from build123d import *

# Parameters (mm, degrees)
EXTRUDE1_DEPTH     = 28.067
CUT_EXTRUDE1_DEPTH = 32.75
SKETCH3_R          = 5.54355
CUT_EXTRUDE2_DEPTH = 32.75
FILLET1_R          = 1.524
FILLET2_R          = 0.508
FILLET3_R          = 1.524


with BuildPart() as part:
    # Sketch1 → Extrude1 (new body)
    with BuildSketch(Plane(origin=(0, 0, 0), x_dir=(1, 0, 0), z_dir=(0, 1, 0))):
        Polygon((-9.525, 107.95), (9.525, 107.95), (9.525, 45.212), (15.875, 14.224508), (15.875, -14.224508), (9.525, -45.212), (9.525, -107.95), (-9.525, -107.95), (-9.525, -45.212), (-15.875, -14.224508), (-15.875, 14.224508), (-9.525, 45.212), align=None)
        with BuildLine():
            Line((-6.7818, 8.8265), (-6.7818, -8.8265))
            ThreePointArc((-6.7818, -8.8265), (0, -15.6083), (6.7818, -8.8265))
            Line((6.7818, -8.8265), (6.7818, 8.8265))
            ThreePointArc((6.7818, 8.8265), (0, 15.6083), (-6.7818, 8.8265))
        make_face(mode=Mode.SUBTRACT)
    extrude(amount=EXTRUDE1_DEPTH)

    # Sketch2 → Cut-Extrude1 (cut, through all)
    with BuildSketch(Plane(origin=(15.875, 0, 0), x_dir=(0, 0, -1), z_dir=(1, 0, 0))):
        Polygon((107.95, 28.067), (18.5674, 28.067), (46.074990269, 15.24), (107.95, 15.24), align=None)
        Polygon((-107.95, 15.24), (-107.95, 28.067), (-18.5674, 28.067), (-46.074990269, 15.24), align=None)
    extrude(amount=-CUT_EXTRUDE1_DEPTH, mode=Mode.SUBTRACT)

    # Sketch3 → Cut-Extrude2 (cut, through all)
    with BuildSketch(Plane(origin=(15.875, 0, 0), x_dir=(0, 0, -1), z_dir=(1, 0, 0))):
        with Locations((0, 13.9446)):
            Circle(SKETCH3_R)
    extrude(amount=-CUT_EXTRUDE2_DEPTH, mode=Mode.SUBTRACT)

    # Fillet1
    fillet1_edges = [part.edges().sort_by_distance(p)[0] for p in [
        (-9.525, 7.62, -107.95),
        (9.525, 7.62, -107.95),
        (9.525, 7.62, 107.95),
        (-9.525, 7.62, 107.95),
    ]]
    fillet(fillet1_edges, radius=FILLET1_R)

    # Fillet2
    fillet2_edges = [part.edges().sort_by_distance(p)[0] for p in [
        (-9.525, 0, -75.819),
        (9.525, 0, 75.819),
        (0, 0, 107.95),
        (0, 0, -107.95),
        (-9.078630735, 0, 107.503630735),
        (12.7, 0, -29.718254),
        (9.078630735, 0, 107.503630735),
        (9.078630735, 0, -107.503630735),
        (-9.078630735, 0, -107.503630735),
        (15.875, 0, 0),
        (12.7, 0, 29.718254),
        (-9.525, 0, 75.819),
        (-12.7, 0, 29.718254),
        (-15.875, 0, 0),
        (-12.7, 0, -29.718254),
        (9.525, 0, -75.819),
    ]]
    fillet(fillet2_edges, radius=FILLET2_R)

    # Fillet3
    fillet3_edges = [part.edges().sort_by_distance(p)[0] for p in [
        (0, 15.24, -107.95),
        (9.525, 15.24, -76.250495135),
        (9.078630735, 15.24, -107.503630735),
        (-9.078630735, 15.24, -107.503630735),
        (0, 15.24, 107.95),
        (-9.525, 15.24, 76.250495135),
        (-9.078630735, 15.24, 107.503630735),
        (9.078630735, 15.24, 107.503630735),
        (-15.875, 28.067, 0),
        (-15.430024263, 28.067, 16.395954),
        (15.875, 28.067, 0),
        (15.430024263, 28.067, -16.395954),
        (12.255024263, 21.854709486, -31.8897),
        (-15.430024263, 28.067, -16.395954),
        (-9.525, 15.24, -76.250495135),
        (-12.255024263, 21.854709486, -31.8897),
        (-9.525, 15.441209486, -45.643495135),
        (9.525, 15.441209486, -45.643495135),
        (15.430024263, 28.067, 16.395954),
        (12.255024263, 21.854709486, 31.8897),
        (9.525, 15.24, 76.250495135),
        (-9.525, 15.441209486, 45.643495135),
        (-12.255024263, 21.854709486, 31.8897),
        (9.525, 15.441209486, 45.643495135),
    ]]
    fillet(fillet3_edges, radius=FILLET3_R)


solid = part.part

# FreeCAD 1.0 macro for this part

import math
import FreeCAD as App
import Part
import Sketcher

V = App.Vector
Q = App.Units.Quantity


def edges_at(feature, points):
    """Names of the edges that pass closest to the given points."""
    edges = feature.Shape.Edges
    near = lambda p: min(range(len(edges)), key=lambda i: edges[i].distToShape(Part.Vertex(*p))[0])
    return sorted({f"Edge{near(p) + 1}" for p in points})

doc = App.newDocument("Part")
params = doc.addObject("Spreadsheet::Sheet", "Params")
for row, (alias, value) in enumerate([
    ("sketch1_radius", "0.267 in"),
    ("sketch1_width", "0.75 in"),
    ("sketch1_height", "2.47 in"),
    ("sketch1_height2", "0.695 in"),
    ("pad1_length", "1.105 in"),
    ("sketch2_width", "0.505 in"),
    ("sketch2_height", "3.519 in"),
    ("fillet_radius", "0.06 in"),
    ("fillet2_radius", "0.02 in"),
    ("fillet3_radius", "0.06 in"),
], start=1):
    params.set(f"A{row}", alias)
    params.set(f"B{row}", "=" + value)
    params.setAlias(f"B{row}", alias)

body = doc.addObject("PartDesign::Body", "Body")

sketch1 = body.newObject("Sketcher::SketchObject", "Sketch")
sketch1.AttachmentSupport = (doc.getObject("XZ_Plane"), [""])
sketch1.MapMode = "FlatFace"
sketch1.addGeometry(Part.LineSegment(V(10, -108, 0), V(-10, -108, 0)), False)
sketch1.addGeometry(Part.LineSegment(V(-10, -108, 0), V(-10, -45, 0)), False)
sketch1.addGeometry(Part.LineSegment(V(-10, -45, 0), V(-16, -14, 0)), False)
sketch1.addGeometry(Part.LineSegment(V(-16, -14, 0), V(-16, 14, 0)), False)
sketch1.addGeometry(Part.LineSegment(V(-16, 14, 0), V(-10, 45, 0)), False)
sketch1.addGeometry(Part.LineSegment(V(-10, 45, 0), V(-10, 108, 0)), False)
sketch1.addGeometry(Part.LineSegment(V(-10, 108, 0), V(10, 108, 0)), False)
sketch1.addGeometry(Part.LineSegment(V(10, 108, 0), V(10, 45, 0)), False)
sketch1.addGeometry(Part.LineSegment(V(10, 45, 0), V(16, 14, 0)), False)
sketch1.addGeometry(Part.LineSegment(V(16, 14, 0), V(16, -14, 0)), False)
sketch1.addGeometry(Part.LineSegment(V(16, -14, 0), V(10, -45, 0)), False)
sketch1.addGeometry(Part.LineSegment(V(10, -45, 0), V(10, -108, 0)), False)
sketch1.addGeometry(Part.ArcOfCircle(Part.Circle(V(0, -9, 0), V(0, 0, 1), 7), math.radians(180), math.radians(360)), False)
sketch1.addGeometry(Part.LineSegment(V(7, -9, 0), V(7, 9, 0)), False)
sketch1.addGeometry(Part.ArcOfCircle(Part.Circle(V(0, 9, 0), V(0, 0, 1), 7), math.radians(0), math.radians(180)), False)
sketch1.addGeometry(Part.LineSegment(V(-7, 9, 0), V(-7, -9, 0)), False)
sketch1.addConstraint(Sketcher.Constraint("Coincident", 0, 2, 1, 1))
sketch1.addConstraint(Sketcher.Constraint("Coincident", 1, 2, 2, 1))
sketch1.addConstraint(Sketcher.Constraint("Coincident", 2, 2, 3, 1))
sketch1.addConstraint(Sketcher.Constraint("Coincident", 3, 2, 4, 1))
sketch1.addConstraint(Sketcher.Constraint("Coincident", 4, 2, 5, 1))
sketch1.addConstraint(Sketcher.Constraint("Coincident", 5, 2, 6, 1))
sketch1.addConstraint(Sketcher.Constraint("Coincident", 6, 2, 7, 1))
sketch1.addConstraint(Sketcher.Constraint("Coincident", 7, 2, 8, 1))
sketch1.addConstraint(Sketcher.Constraint("Coincident", 8, 2, 9, 1))
sketch1.addConstraint(Sketcher.Constraint("Coincident", 9, 2, 10, 1))
sketch1.addConstraint(Sketcher.Constraint("Coincident", 10, 2, 11, 1))
sketch1.addConstraint(Sketcher.Constraint("Coincident", 11, 2, 0, 1))
sketch1.addConstraint(Sketcher.Constraint("Tangent", 12, 2, 13, 1))
sketch1.addConstraint(Sketcher.Constraint("Tangent", 13, 2, 14, 1))
sketch1.addConstraint(Sketcher.Constraint("Tangent", 14, 2, 15, 1))
sketch1.addConstraint(Sketcher.Constraint("Tangent", 15, 2, 12, 1))
sketch1.addConstraint(Sketcher.Constraint("Horizontal", 0))
sketch1.addConstraint(Sketcher.Constraint("Vertical", 1))
sketch1.addConstraint(Sketcher.Constraint("Vertical", 3))
sketch1.addConstraint(Sketcher.Constraint("Vertical", 5))
sketch1.addConstraint(Sketcher.Constraint("Horizontal", 6))
sketch1.addConstraint(Sketcher.Constraint("Vertical", 7))
sketch1.addConstraint(Sketcher.Constraint("Vertical", 9))
sketch1.addConstraint(Sketcher.Constraint("Vertical", 11))
sketch1.addConstraint(Sketcher.Constraint("Vertical", 13))
sketch1.addConstraint(Sketcher.Constraint("Vertical", 15))
sketch1.addConstraint(Sketcher.Constraint("Symmetric", 12, 3, 14, 3, -1, 1))
sketch1.addConstraint(Sketcher.Constraint("Symmetric", 0, 2, 6, 2, -1, 1))
sketch1.addConstraint(Sketcher.Constraint("Symmetric", 2, 2, 8, 2, -1, 1))
sketch1.addConstraint(Sketcher.Constraint("Symmetric", 4, 2, 10, 2, -1, 1))
sketch1.addConstraint(Sketcher.Constraint("Symmetric", 4, 2, 7, 2, -2))
sketch1.addConstraint(Sketcher.Constraint("Parallel", 2, 8))
sketch1.addConstraint(Sketcher.Constraint("Parallel", 4, 10))
sketch1.addConstraint(Sketcher.Constraint("Horizontal", 3, 2, 8, 2))
sketch1.addConstraint(Sketcher.Constraint("Radius", 12, Q("0.267 in")))
sketch1.addConstraint(Sketcher.Constraint("DistanceX", 3, 2, 6, 2, Q("1 in")))
sketch1.addConstraint(Sketcher.Constraint("DistanceX", 0, 2, 0, 1, Q("0.75 in")))
sketch1.addConstraint(Sketcher.Constraint("DistanceY", 1, 1, 1, 2, Q("2.47 in")))
sketch1.addConstraint(Sketcher.Constraint("DistanceY", 13, 1, 13, 2, Q("0.695 in")))
sketch1.addConstraint(Sketcher.Constraint("DistanceY", 0, 2, -1, 1, Q("4.25 in")))
sketch1.addConstraint(Sketcher.Constraint("DistanceY", 3, 1, 3, 2, Q("28.449016 mm")))
sketch1.setExpression("Constraints[34]", "Params.sketch1_radius")
sketch1.setExpression("Constraints[36]", "Params.sketch1_width")
sketch1.setExpression("Constraints[37]", "Params.sketch1_height")
sketch1.setExpression("Constraints[38]", "Params.sketch1_height2")
pad1 = body.newObject("PartDesign::Pad", "Pad")
pad1.Profile = sketch1
pad1.setExpression("Length", "Params.pad1_length")
pad1.Reversed = True

sketch2 = body.newObject("Sketcher::SketchObject", "Sketch001")
sketch2.AttachmentSupport = (doc.getObject("YZ_Plane"), [""])
sketch2.MapMode = "FlatFace"
sketch2.AttachmentOffset = App.Placement(V(0, 0, 0.625 * 25.4), App.Rotation())
sketch2.addGeometry(Part.LineSegment(V(28, -108, 0), V(28, -19, 0)), False)
sketch2.addGeometry(Part.LineSegment(V(28, -19, 0), V(15, -46, 0)), False)
sketch2.addGeometry(Part.LineSegment(V(15, -46, 0), V(15, -108, 0)), False)
sketch2.addGeometry(Part.LineSegment(V(15, -108, 0), V(28, -108, 0)), False)
sketch2.addGeometry(Part.LineSegment(V(28, 108, 0), V(15, 108, 0)), False)
sketch2.addGeometry(Part.LineSegment(V(15, 108, 0), V(15, 46, 0)), False)
sketch2.addGeometry(Part.LineSegment(V(15, 46, 0), V(28, 19, 0)), False)
sketch2.addGeometry(Part.LineSegment(V(28, 19, 0), V(28, 108, 0)), False)
sketch2.addConstraint(Sketcher.Constraint("Coincident", 0, 2, 1, 1))
sketch2.addConstraint(Sketcher.Constraint("Coincident", 1, 2, 2, 1))
sketch2.addConstraint(Sketcher.Constraint("Coincident", 2, 2, 3, 1))
sketch2.addConstraint(Sketcher.Constraint("Coincident", 3, 2, 0, 1))
sketch2.addConstraint(Sketcher.Constraint("Coincident", 4, 2, 5, 1))
sketch2.addConstraint(Sketcher.Constraint("Coincident", 5, 2, 6, 1))
sketch2.addConstraint(Sketcher.Constraint("Coincident", 6, 2, 7, 1))
sketch2.addConstraint(Sketcher.Constraint("Coincident", 7, 2, 4, 1))
sketch2.addConstraint(Sketcher.Constraint("Vertical", 0))
sketch2.addConstraint(Sketcher.Constraint("Vertical", 2))
sketch2.addConstraint(Sketcher.Constraint("Horizontal", 3))
sketch2.addConstraint(Sketcher.Constraint("Horizontal", 4))
sketch2.addConstraint(Sketcher.Constraint("Vertical", 5))
sketch2.addConstraint(Sketcher.Constraint("Vertical", 7))
sketch2.addConstraint(Sketcher.Constraint("Symmetric", 2, 2, 4, 2, -1))
sketch2.addConstraint(Sketcher.Constraint("Symmetric", 0, 2, 6, 2, -1))
sketch2.addConstraint(Sketcher.Constraint("Equal", 2, 5))
sketch2.addConstraint(Sketcher.Constraint("Angle", 1, Q("-115 deg")))
sketch2.addConstraint(Sketcher.Constraint("DistanceX", -1, 1, 1, 2, Q("0.6 in")))
sketch2.addConstraint(Sketcher.Constraint("DistanceY", 2, 2, 4, 2, Q("8.5 in")))
sketch2.addConstraint(Sketcher.Constraint("DistanceX", 3, 1, 3, 2, Q("0.505 in")))
sketch2.addConstraint(Sketcher.Constraint("DistanceY", 0, 1, 0, 2, Q("3.519 in")))
sketch2.setExpression("Constraints[20]", "Params.sketch2_width")
sketch2.setExpression("Constraints[21]", "Params.sketch2_height")
pocket1 = body.newObject("PartDesign::Pocket", "Pocket")
pocket1.Profile = sketch2
pocket1.Type = "ThroughAll"

sketch3 = body.newObject("Sketcher::SketchObject", "Sketch002")
sketch3.AttachmentSupport = (doc.getObject("YZ_Plane"), [""])
sketch3.MapMode = "FlatFace"
sketch3.AttachmentOffset = App.Placement(V(0, 0, 0.625 * 25.4), App.Rotation())
sketch3.addGeometry(Part.Circle(V(14, 0, 0), V(0, 0, 1), 6), False)
sketch3.addConstraint(Sketcher.Constraint("PointOnObject", 0, 3, -1))
sketch3.addConstraint(Sketcher.Constraint("Diameter", 0, Q("0.4365 in")))
sketch3.addConstraint(Sketcher.Constraint("DistanceX", -1, 1, 0, 3, Q("0.549 in")))
pocket2 = body.newObject("PartDesign::Pocket", "Pocket001")
pocket2.Profile = sketch3
pocket2.Type = "ThroughAll"
doc.recompute()

fillet = body.newObject("PartDesign::Fillet", "Fillet")
fillet.Base = (pocket2, edges_at(pocket2, [
    (-9.525, 7.62, -107.95),
    (9.525, 7.62, -107.95),
    (9.525, 7.62, 107.95),
    (-9.525, 7.62, 107.95),
]))
fillet.setExpression("Radius", "Params.fillet_radius")
doc.recompute()

fillet2 = body.newObject("PartDesign::Fillet", "Fillet001")
fillet2.Base = (fillet, edges_at(fillet, [
    (-9.525, 0, -75.819),
    (9.525, 0, 75.819),
    (0, 0, 107.95),
    (0, 0, -107.95),
    (-9.079, 0, 107.504),
    (12.7, 0, -29.718),
    (9.079, 0, 107.504),
    (9.079, 0, -107.504),
    (-9.079, 0, -107.504),
    (15.875, 0, 0),
    (12.7, 0, 29.718),
    (-9.525, 0, 75.819),
    (-12.7, 0, 29.718),
    (-15.875, 0, 0),
    (-12.7, 0, -29.718),
    (9.525, 0, -75.819),
]))
fillet2.setExpression("Radius", "Params.fillet2_radius")
doc.recompute()

fillet3 = body.newObject("PartDesign::Fillet", "Fillet002")
fillet3.Base = (fillet2, edges_at(fillet2, [
    (0, 15.24, -107.95),
    (9.525, 15.24, -76.25),
    (9.079, 15.24, -107.504),
    (-9.079, 15.24, -107.504),
    (0, 15.24, 107.95),
    (-9.525, 15.24, 76.25),
    (-9.079, 15.24, 107.504),
    (9.079, 15.24, 107.504),
    (-15.875, 28.067, 0),
    (-15.43, 28.067, 16.396),
    (15.875, 28.067, 0),
    (15.43, 28.067, -16.396),
    (12.255, 21.855, -31.89),
    (-15.43, 28.067, -16.396),
    (-9.525, 15.24, -76.25),
    (-12.255, 21.855, -31.89),
    (-9.525, 15.441, -45.643),
    (9.525, 15.441, -45.643),
    (15.43, 28.067, 16.396),
    (12.255, 21.855, 31.89),
    (9.525, 15.24, 76.25),
    (-9.525, 15.441, 45.643),
    (-12.255, 21.855, 31.89),
    (9.525, 15.441, 45.643),
]))
fillet3.setExpression("Radius", "Params.fillet3_radius")

doc.recompute()
